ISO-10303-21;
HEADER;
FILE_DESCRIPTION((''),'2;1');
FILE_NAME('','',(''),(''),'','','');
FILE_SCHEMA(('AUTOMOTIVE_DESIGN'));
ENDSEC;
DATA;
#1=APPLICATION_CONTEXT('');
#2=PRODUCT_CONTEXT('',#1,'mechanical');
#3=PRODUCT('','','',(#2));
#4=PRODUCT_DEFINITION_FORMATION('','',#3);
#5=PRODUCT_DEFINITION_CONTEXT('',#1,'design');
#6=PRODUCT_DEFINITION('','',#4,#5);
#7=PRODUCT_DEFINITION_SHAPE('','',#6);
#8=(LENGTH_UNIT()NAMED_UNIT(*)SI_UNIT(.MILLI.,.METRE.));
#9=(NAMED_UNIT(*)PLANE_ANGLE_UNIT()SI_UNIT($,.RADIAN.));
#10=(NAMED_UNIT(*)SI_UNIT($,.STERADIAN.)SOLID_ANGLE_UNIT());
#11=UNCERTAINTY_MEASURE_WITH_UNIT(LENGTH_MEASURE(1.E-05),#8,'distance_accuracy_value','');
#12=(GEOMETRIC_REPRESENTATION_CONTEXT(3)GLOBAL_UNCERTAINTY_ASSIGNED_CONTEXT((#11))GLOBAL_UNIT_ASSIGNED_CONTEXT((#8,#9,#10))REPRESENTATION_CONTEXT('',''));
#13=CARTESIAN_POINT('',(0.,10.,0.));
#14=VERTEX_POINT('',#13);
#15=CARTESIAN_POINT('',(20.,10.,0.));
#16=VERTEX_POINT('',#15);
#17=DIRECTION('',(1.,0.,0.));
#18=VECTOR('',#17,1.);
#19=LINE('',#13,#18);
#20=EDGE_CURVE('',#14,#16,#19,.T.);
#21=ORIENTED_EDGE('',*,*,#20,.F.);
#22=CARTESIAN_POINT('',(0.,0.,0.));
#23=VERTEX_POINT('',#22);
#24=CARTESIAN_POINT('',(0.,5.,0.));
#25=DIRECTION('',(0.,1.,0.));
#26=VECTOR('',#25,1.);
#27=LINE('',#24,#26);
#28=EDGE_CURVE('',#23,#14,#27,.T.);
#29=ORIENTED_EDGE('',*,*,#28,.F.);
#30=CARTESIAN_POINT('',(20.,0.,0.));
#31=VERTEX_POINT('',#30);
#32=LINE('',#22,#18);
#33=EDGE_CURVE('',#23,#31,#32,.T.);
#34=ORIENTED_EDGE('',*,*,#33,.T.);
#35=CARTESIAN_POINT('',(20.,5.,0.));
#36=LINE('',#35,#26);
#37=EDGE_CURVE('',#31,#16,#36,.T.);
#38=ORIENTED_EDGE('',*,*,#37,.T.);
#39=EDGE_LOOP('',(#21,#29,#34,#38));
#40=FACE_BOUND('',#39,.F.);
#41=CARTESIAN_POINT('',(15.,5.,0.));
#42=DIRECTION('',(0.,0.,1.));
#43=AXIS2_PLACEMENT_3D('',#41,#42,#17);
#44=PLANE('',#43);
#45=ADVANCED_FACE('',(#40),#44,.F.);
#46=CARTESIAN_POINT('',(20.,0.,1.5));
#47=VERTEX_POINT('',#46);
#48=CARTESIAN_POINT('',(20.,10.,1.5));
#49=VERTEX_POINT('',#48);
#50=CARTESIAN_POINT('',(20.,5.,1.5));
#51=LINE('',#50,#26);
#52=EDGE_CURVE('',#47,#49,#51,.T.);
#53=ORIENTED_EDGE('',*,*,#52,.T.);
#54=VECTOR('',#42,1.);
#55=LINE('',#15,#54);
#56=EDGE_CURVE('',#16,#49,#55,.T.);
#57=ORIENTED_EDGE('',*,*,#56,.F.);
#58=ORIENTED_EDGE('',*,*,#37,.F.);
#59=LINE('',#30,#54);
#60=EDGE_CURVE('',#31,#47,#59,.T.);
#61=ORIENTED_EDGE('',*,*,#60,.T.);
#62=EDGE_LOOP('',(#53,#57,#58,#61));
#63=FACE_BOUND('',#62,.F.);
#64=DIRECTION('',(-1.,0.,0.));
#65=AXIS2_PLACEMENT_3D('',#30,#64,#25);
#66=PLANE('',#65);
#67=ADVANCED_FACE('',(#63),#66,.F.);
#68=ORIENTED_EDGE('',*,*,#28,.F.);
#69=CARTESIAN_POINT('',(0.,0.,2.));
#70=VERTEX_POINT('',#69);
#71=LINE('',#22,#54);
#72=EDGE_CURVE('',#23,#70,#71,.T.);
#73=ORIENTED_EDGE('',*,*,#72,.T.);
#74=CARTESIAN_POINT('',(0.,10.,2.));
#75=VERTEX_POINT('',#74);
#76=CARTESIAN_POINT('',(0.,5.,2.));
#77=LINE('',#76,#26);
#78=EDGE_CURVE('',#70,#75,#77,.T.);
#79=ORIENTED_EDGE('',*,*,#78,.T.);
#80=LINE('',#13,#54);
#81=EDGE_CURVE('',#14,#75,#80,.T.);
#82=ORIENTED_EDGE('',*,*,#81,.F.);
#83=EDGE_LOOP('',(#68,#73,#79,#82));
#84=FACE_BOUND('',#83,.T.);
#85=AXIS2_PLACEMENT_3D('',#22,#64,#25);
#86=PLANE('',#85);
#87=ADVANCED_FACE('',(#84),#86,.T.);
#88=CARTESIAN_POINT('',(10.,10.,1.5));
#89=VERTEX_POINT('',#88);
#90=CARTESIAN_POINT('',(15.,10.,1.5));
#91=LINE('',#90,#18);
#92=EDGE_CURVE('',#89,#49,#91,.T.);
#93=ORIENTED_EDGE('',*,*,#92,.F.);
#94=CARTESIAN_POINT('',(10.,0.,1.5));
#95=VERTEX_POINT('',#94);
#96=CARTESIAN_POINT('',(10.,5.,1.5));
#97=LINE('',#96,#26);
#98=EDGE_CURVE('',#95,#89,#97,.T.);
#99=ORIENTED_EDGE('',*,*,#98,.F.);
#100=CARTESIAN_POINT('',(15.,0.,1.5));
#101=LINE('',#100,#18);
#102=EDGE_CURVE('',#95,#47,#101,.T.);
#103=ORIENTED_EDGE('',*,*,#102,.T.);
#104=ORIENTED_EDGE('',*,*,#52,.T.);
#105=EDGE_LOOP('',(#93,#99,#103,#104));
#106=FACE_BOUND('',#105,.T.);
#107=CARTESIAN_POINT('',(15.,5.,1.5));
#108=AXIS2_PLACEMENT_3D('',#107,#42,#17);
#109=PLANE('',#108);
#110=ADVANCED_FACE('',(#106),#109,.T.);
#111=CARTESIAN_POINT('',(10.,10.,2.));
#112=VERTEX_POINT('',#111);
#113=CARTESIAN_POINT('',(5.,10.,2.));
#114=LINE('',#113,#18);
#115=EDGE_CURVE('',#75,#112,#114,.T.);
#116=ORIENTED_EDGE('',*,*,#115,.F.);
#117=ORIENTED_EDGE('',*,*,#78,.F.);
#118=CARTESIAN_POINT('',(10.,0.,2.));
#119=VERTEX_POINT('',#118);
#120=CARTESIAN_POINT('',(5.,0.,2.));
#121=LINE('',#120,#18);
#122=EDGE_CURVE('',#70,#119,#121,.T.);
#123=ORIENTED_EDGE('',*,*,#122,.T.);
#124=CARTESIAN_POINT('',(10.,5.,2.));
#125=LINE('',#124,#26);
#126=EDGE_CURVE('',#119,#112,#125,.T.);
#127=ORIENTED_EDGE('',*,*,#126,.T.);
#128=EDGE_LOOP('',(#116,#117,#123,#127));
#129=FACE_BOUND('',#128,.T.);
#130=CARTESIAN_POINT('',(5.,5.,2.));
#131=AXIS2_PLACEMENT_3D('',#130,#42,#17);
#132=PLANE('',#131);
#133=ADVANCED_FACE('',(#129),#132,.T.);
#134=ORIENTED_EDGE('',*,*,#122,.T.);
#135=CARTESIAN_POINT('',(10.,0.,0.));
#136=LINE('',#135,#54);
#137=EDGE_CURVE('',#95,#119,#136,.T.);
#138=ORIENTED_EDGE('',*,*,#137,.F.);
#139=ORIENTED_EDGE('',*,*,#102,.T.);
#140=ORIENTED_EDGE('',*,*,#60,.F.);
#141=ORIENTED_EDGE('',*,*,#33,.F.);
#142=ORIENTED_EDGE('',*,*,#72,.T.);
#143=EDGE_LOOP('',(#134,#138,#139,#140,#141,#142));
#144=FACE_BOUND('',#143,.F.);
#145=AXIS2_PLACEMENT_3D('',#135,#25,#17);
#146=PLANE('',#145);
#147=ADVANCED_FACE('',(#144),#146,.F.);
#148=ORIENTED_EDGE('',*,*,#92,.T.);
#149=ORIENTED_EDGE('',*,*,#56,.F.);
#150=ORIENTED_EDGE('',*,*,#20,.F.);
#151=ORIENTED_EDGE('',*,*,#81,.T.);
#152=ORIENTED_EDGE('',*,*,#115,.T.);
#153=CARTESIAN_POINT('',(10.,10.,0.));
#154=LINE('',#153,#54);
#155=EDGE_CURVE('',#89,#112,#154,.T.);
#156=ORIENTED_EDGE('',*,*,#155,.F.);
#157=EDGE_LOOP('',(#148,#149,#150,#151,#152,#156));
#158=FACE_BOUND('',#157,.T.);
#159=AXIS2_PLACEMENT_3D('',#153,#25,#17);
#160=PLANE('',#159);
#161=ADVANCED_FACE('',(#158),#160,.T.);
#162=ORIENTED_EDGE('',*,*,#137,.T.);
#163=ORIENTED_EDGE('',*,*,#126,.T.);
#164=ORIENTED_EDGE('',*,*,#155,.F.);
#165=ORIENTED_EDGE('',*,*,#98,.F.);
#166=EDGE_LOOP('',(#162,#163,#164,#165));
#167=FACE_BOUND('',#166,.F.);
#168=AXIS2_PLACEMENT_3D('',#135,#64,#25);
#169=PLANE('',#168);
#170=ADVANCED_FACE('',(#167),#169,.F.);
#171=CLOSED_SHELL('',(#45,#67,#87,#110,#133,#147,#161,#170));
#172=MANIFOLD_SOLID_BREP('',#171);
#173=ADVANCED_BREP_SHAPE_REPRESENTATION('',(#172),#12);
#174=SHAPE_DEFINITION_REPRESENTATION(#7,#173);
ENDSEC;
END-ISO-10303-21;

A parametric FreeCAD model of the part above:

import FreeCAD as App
import Part
import Sketcher
Q = App.Units.Quantity

doc = App.newDocument("Part")
params = doc.addObject("Spreadsheet::Sheet", "Params")
for row, (alias, value) in enumerate([
    ("sketch1_width", "10 mm"),
    ("pad1_length", "2 mm"),
    ("sketch2_width", "10 mm"),
    ("pad2_length", "1.5 mm"),
], start=1):
    params.set(f"A{row}", alias)
    params.set(f"B{row}", "=" + value)
    params.setAlias(f"B{row}", alias)

body = doc.addObject("PartDesign::Body", "Body")

sketch1 = body.newObject("Sketcher::SketchObject", "Sketch")
sketch1.AttachmentSupport = (doc.getObject("XY_Plane"), [""])
sketch1.MapMode = "FlatFace"
sketch1.addGeometry(Part.LineSegment(App.Vector(0, 10, 0), App.Vector(0, 0, 0)), False)
sketch1.addGeometry(Part.LineSegment(App.Vector(0, 0, 0), App.Vector(10, 0, 0)), False)
sketch1.addGeometry(Part.LineSegment(App.Vector(10, 0, 0), App.Vector(10, 10, 0)), False)
sketch1.addGeometry(Part.LineSegment(App.Vector(10, 10, 0), App.Vector(0, 10, 0)), False)
sketch1.addConstraint(Sketcher.Constraint("Coincident", 0, 2, 1, 1))
sketch1.addConstraint(Sketcher.Constraint("Coincident", 1, 2, 2, 1))
sketch1.addConstraint(Sketcher.Constraint("Coincident", 2, 2, 3, 1))
sketch1.addConstraint(Sketcher.Constraint("Coincident", 3, 2, 0, 1))
sketch1.addConstraint(Sketcher.Constraint("Vertical", 0))
sketch1.addConstraint(Sketcher.Constraint("Horizontal", 1))
sketch1.addConstraint(Sketcher.Constraint("Vertical", 2))
sketch1.addConstraint(Sketcher.Constraint("Horizontal", 3))
sketch1.addConstraint(Sketcher.Constraint("Coincident", 0, 2, -1, 1))
sketch1.addConstraint(Sketcher.Constraint("Equal", 3, 0))
sketch1.addConstraint(Sketcher.Constraint("DistanceX", 1, 1, 1, 2, Q("10 mm")))
sketch1.setExpression("Constraints[10]", "Params.sketch1_width")
pad1 = body.newObject("PartDesign::Pad", "Pad")
pad1.Profile = sketch1
pad1.setExpression("Length", "Params.pad1_length")

sketch2 = body.newObject("Sketcher::SketchObject", "Sketch001")
sketch2.AttachmentSupport = (doc.getObject("XY_Plane"), [""])
sketch2.MapMode = "FlatFace"
sketch2.addGeometry(Part.LineSegment(App.Vector(10, 10, 0), App.Vector(10, 0, 0)), False)
sketch2.addGeometry(Part.LineSegment(App.Vector(10, 0, 0), App.Vector(20, 0, 0)), False)
sketch2.addGeometry(Part.LineSegment(App.Vector(20, 0, 0), App.Vector(20, 10, 0)), False)
sketch2.addGeometry(Part.LineSegment(App.Vector(20, 10, 0), App.Vector(10, 10, 0)), False)
sketch2.addConstraint(Sketcher.Constraint("Coincident", 0, 2, 1, 1))
sketch2.addConstraint(Sketcher.Constraint("Coincident", 1, 2, 2, 1))
sketch2.addConstraint(Sketcher.Constraint("Coincident", 2, 2, 3, 1))
sketch2.addConstraint(Sketcher.Constraint("Coincident", 3, 2, 0, 1))
sketch2.addConstraint(Sketcher.Constraint("Vertical", 0))
sketch2.addConstraint(Sketcher.Constraint("Horizontal", 1))
sketch2.addConstraint(Sketcher.Constraint("Vertical", 2))
sketch2.addConstraint(Sketcher.Constraint("Horizontal", 3))
sketch2.addConstraint(Sketcher.Constraint("PointOnObject", 0, 2, -1))
sketch2.addConstraint(Sketcher.Constraint("Equal", 3, 0))
sketch2.addConstraint(Sketcher.Constraint("DistanceX", 1, 1, 1, 2, Q("10 mm")))
sketch2.addConstraint(Sketcher.Constraint("DistanceX", -1, 1, 0, 2, Q("10 mm")))
sketch2.setExpression("Constraints[10]", "Params.sketch2_width")
pad2 = body.newObject("PartDesign::Pad", "Pad001")
pad2.Profile = sketch2
pad2.setExpression("Length", "Params.pad2_length")

doc.recompute()
